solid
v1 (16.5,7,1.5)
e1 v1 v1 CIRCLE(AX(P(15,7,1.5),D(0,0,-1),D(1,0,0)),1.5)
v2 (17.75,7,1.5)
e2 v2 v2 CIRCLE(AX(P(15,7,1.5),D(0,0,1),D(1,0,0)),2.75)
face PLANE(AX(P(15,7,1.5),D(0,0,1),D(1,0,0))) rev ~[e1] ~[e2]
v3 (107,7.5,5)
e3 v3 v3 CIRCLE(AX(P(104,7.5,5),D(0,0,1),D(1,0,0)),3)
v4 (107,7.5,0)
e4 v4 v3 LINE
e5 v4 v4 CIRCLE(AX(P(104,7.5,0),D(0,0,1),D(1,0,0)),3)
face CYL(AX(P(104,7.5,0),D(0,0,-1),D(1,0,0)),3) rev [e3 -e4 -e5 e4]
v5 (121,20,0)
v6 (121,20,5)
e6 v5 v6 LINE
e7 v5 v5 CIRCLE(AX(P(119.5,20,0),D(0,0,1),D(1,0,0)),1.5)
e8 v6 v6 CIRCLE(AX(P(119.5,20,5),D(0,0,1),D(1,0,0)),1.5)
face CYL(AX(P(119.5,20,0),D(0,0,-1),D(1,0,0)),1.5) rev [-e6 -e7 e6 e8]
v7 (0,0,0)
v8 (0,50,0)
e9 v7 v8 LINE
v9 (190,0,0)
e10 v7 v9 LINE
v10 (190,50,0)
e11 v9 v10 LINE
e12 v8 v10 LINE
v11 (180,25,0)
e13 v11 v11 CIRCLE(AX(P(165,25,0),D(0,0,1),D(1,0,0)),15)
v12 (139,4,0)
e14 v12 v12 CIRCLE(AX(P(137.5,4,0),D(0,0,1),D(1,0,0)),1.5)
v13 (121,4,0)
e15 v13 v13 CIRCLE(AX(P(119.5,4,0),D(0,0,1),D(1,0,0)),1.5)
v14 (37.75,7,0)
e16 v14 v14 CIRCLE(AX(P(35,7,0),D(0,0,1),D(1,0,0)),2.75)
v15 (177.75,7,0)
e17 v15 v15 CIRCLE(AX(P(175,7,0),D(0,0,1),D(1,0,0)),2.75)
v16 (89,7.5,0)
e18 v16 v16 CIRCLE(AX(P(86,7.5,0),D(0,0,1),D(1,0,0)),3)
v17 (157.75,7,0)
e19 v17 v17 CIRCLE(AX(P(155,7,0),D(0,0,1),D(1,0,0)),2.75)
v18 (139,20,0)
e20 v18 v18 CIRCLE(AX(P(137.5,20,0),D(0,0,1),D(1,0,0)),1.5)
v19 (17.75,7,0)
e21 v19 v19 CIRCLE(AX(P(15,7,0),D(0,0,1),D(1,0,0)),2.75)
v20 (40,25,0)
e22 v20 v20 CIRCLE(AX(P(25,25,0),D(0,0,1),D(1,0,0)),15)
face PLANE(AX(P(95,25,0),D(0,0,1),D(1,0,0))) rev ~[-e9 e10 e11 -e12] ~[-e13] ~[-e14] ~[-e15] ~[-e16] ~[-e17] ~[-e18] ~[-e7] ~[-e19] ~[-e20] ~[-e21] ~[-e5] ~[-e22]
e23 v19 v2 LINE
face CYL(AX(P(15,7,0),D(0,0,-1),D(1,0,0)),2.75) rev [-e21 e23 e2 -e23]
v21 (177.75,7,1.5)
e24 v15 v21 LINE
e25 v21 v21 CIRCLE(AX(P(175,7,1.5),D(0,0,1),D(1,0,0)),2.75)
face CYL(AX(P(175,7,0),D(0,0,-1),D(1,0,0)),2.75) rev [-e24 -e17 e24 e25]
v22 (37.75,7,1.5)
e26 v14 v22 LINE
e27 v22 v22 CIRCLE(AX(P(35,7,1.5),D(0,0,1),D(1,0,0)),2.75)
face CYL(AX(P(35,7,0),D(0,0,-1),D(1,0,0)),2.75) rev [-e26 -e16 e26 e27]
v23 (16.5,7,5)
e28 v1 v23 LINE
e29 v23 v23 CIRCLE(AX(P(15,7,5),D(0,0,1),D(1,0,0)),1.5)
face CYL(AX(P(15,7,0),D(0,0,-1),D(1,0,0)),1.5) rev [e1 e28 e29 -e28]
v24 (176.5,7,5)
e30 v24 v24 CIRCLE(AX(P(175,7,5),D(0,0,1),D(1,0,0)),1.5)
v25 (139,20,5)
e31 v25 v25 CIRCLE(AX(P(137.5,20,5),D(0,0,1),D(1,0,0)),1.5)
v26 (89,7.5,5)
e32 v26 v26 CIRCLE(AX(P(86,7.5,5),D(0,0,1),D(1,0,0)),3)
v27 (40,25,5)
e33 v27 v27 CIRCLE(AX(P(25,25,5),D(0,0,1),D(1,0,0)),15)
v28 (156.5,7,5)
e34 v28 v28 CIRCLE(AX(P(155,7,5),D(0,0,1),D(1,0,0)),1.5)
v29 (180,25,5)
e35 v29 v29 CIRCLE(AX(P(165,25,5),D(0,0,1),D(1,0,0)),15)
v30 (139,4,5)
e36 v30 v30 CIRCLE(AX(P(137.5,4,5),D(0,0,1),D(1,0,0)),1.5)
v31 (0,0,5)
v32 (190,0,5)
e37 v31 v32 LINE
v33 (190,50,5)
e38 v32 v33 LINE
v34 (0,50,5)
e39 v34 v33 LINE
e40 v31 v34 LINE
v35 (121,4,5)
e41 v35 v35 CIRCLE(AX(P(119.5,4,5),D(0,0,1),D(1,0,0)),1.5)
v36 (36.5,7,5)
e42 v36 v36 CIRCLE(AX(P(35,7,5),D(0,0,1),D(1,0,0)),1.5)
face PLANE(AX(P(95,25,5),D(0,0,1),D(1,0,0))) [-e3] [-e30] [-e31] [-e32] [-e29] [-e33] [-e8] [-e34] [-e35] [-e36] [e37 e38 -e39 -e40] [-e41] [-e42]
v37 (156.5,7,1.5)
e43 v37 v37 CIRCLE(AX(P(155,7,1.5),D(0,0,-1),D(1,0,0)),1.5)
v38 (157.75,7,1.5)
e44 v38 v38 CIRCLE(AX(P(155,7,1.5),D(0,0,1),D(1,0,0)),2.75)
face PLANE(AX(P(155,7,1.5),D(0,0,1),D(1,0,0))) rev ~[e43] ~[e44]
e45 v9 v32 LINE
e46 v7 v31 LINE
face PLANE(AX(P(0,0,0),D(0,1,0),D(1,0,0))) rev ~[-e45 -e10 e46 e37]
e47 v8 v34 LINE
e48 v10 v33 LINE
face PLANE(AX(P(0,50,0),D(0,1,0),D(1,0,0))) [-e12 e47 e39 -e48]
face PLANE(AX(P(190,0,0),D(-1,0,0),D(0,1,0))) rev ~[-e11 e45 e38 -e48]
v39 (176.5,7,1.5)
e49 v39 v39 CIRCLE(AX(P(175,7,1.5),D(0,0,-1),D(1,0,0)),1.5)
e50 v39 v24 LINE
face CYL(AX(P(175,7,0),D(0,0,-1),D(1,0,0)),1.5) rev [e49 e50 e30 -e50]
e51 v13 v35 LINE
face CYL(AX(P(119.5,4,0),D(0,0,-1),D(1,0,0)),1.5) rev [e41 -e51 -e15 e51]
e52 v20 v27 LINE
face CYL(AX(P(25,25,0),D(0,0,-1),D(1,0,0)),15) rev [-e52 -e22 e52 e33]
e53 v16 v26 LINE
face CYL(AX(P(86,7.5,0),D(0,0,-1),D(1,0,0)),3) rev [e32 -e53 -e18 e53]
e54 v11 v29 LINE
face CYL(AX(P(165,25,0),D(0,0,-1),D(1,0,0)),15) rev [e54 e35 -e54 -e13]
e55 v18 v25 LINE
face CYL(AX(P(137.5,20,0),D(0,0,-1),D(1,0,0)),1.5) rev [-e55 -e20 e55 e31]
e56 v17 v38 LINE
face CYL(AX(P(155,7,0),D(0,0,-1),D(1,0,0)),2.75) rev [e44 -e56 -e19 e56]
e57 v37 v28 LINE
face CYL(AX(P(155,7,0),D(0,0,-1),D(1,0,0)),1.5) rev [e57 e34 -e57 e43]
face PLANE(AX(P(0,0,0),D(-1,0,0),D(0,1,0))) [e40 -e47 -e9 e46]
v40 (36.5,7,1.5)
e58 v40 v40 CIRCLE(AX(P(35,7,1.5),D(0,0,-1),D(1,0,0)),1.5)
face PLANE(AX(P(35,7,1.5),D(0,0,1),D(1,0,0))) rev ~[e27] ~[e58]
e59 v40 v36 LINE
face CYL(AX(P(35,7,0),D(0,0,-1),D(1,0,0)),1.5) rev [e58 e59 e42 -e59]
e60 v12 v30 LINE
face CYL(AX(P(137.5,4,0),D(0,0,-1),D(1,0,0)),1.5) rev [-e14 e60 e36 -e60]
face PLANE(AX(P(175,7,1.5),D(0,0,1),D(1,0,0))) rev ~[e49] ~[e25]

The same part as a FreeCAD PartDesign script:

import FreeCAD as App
import Part
import Sketcher

V = App.Vector
Q = App.Units.Quantity

doc = App.newDocument("Part")
params = doc.addObject("Spreadsheet::Sheet", "Params")
for row, (alias, value) in enumerate([
    ("sketch1_diameter", "3 mm"),
    ("sketch1_diameter2", "6 mm"),
    ("sketch1_diameter3", "30 mm"),
    ("sketch1_width", "190 mm"),
    ("sketch1_height", "50 mm"),
    ("pad1_length", "5 mm"),
    ("sketch2_diameter", "5.5 mm"),
    ("pocket1_length", "1.5 mm"),
], start=1):
    params.set(f"A{row}", alias)
    params.set(f"B{row}", "=" + value)
    params.setAlias(f"B{row}", alias)

body = doc.addObject("PartDesign::Body", "Body")

sketch1 = body.newObject("Sketcher::SketchObject", "Sketch")
sketch1.AttachmentSupport = (doc.getObject("XY_Plane"), [""])
sketch1.MapMode = "FlatFace"
sketch1.addGeometry(Part.LineSegment(V(0, 50, 0), V(0, 0, 0)), False)
sketch1.addGeometry(Part.LineSegment(V(0, 0, 0), V(190, 0, 0)), False)
sketch1.addGeometry(Part.LineSegment(V(190, 0, 0), V(190, 50, 0)), False)
sketch1.addGeometry(Part.LineSegment(V(190, 50, 0), V(0, 50, 0)), False)
sketch1.addGeometry(Part.Circle(V(15, 7, 0), V(0, 0, 1), 1.5), False)
sketch1.addGeometry(Part.Circle(V(35, 7, 0), V(0, 0, 1), 1.5), False)
sketch1.addGeometry(Part.Circle(V(86, 7.5, 0), V(0, 0, 1), 3), False)
sketch1.addGeometry(Part.Circle(V(119.5, 4, 0), V(0, 0, 1), 1.5), False)
sketch1.addGeometry(Part.Circle(V(104, 7.5, 0), V(0, 0, 1), 3), False)
sketch1.addGeometry(Part.Circle(V(137.5, 4, 0), V(0, 0, 1), 1.5), False)
sketch1.addGeometry(Part.Circle(V(155, 7, 0), V(0, 0, 1), 1.5), False)
sketch1.addGeometry(Part.Circle(V(175, 7, 0), V(0, 0, 1), 1.5), False)
sketch1.addGeometry(Part.Circle(V(119.5, 20, 0), V(0, 0, 1), 1.5), False)
sketch1.addGeometry(Part.Circle(V(137.5, 20, 0), V(0, 0, 1), 1.5), False)
sketch1.addGeometry(Part.Circle(V(25, 25, 0), V(0, 0, 1), 15), False)
sketch1.addGeometry(Part.Circle(V(165, 25, 0), V(0, 0, 1), 15), False)
sketch1.addConstraint(Sketcher.Constraint("Coincident", 0, 2, 1, 1))
sketch1.addConstraint(Sketcher.Constraint("Coincident", 1, 2, 2, 1))
sketch1.addConstraint(Sketcher.Constraint("Coincident", 2, 2, 3, 1))
sketch1.addConstraint(Sketcher.Constraint("Coincident", 3, 2, 0, 1))
sketch1.addConstraint(Sketcher.Constraint("Vertical", 0))
sketch1.addConstraint(Sketcher.Constraint("Horizontal", 1))
sketch1.addConstraint(Sketcher.Constraint("Vertical", 2))
sketch1.addConstraint(Sketcher.Constraint("Horizontal", 3))
sketch1.addConstraint(Sketcher.Constraint("Coincident", 0, 2, -1, 1))
sketch1.addConstraint(Sketcher.Constraint("Equal", 4, 5))
sketch1.addConstraint(Sketcher.Constraint("Equal", 5, 7))
sketch1.addConstraint(Sketcher.Constraint("Equal", 6, 8))
sketch1.addConstraint(Sketcher.Constraint("Equal", 7, 9))
sketch1.addConstraint(Sketcher.Constraint("Equal", 9, 10))
sketch1.addConstraint(Sketcher.Constraint("Equal", 10, 11))
sketch1.addConstraint(Sketcher.Constraint("Equal", 11, 12))
sketch1.addConstraint(Sketcher.Constraint("Equal", 12, 13))
sketch1.addConstraint(Sketcher.Constraint("Equal", 14, 15))
sketch1.addConstraint(Sketcher.Constraint("Horizontal", 4, 3, 5, 3))
sketch1.addConstraint(Sketcher.Constraint("Horizontal", 6, 3, 8, 3))
sketch1.addConstraint(Sketcher.Constraint("Horizontal", 7, 3, 9, 3))
sketch1.addConstraint(Sketcher.Constraint("Horizontal", 5, 3, 10, 3))
sketch1.addConstraint(Sketcher.Constraint("Horizontal", 10, 3, 11, 3))
sketch1.addConstraint(Sketcher.Constraint("Horizontal", 12, 3, 13, 3))
sketch1.addConstraint(Sketcher.Constraint("Horizontal", 14, 3, 15, 3))
sketch1.addConstraint(Sketcher.Constraint("Vertical", 7, 3, 12, 3))
sketch1.addConstraint(Sketcher.Constraint("Vertical", 9, 3, 13, 3))
sketch1.addConstraint(Sketcher.Constraint("Diameter", 4, Q("3 mm")))
sketch1.addConstraint(Sketcher.Constraint("Diameter", 6, Q("6 mm")))
sketch1.addConstraint(Sketcher.Constraint("Diameter", 14, Q("30 mm")))
sketch1.addConstraint(Sketcher.Constraint("DistanceX", 1, 1, 1, 2, Q("190 mm")))
sketch1.addConstraint(Sketcher.Constraint("DistanceY", 0, 2, 0, 1, Q("50 mm")))
sketch1.addConstraint(Sketcher.Constraint("DistanceX", -1, 1, 4, 3, Q("15 mm")))
sketch1.addConstraint(Sketcher.Constraint("DistanceY", -1, 1, 4, 3, Q("7 mm")))
sketch1.addConstraint(Sketcher.Constraint("DistanceX", -1, 1, 5, 3, Q("35 mm")))
sketch1.addConstraint(Sketcher.Constraint("DistanceX", -1, 1, 6, 3, Q("86 mm")))
sketch1.addConstraint(Sketcher.Constraint("DistanceY", -1, 1, 7, 3, Q("4 mm")))
sketch1.addConstraint(Sketcher.Constraint("DistanceX", -1, 1, 8, 3, Q("104 mm")))
sketch1.addConstraint(Sketcher.Constraint("DistanceX", -1, 1, 10, 3, Q("155 mm")))
sketch1.addConstraint(Sketcher.Constraint("DistanceX", -1, 1, 11, 3, Q("175 mm")))
sketch1.addConstraint(Sketcher.Constraint("DistanceY", -1, 1, 12, 3, Q("20 mm")))
sketch1.addConstraint(Sketcher.Constraint("DistanceX", -1, 1, 14, 3, Q("25 mm")))
sketch1.addConstraint(Sketcher.Constraint("DistanceY", -1, 1, 14, 3, Q("25 mm")))
sketch1.addConstraint(Sketcher.Constraint("DistanceX", -1, 1, 15, 3, Q("165 mm")))
sketch1.addConstraint(Sketcher.Constraint("DistanceX", 7, 3, 9, 3, Q("18 mm")))
sketch1.addConstraint(Sketcher.Constraint("DistanceY", -1, 1, 6, 3, Q("7.5 mm")))
sketch1.addConstraint(Sketcher.Constraint("DistanceX", -1, 1, 7, 3, Q("119.5 mm")))
sketch1.setExpression("Constraints[27]", "Params.sketch1_diameter")
sketch1.setExpression("Constraints[28]", "Params.sketch1_diameter2")
sketch1.setExpression("Constraints[29]", "Params.sketch1_diameter3")
sketch1.setExpression("Constraints[30]", "Params.sketch1_width")
sketch1.setExpression("Constraints[31]", "Params.sketch1_height")
pad1 = body.newObject("PartDesign::Pad", "Pad")
pad1.Profile = sketch1
pad1.setExpression("Length", "Params.pad1_length")

sketch2 = body.newObject("Sketcher::SketchObject", "Sketch001")
sketch2.AttachmentSupport = (doc.getObject("XY_Plane"), [""])
sketch2.MapMode = "FlatFace"
sketch2.addGeometry(Part.Circle(V(15, 7, 0), V(0, 0, 1), 2.8), False)
sketch2.addGeometry(Part.Circle(V(35, 7, 0), V(0, 0, 1), 2.8), False)
sketch2.addGeometry(Part.Circle(V(155, 7, 0), V(0, 0, 1), 2.8), False)
sketch2.addGeometry(Part.Circle(V(175, 7, 0), V(0, 0, 1), 2.8), False)
sketch2.addConstraint(Sketcher.Constraint("Equal", 0, 1))
sketch2.addConstraint(Sketcher.Constraint("Equal", 1, 2))
sketch2.addConstraint(Sketcher.Constraint("Equal", 2, 3))
sketch2.addConstraint(Sketcher.Constraint("Horizontal", 0, 3, 1, 3))
sketch2.addConstraint(Sketcher.Constraint("Horizontal", 1, 3, 2, 3))
sketch2.addConstraint(Sketcher.Constraint("Horizontal", 2, 3, 3, 3))
sketch2.addConstraint(Sketcher.Constraint("Diameter", 0, Q("5.5 mm")))
sketch2.addConstraint(Sketcher.Constraint("DistanceX", -1, 1, 0, 3, Q("15 mm")))
sketch2.addConstraint(Sketcher.Constraint("DistanceY", -1, 1, 0, 3, Q("7 mm")))
sketch2.addConstraint(Sketcher.Constraint("DistanceX", -1, 1, 1, 3, Q("35 mm")))
sketch2.addConstraint(Sketcher.Constraint("DistanceX", -1, 1, 2, 3, Q("155 mm")))
sketch2.addConstraint(Sketcher.Constraint("DistanceX", -1, 1, 3, 3, Q("175 mm")))
sketch2.setExpression("Constraints[6]", "Params.sketch2_diameter")
pocket1 = body.newObject("PartDesign::Pocket", "Pocket")
pocket1.Profile = sketch2
pocket1.setExpression("Length", "Params.pocket1_length")
pocket1.Reversed = True

doc.recompute()
